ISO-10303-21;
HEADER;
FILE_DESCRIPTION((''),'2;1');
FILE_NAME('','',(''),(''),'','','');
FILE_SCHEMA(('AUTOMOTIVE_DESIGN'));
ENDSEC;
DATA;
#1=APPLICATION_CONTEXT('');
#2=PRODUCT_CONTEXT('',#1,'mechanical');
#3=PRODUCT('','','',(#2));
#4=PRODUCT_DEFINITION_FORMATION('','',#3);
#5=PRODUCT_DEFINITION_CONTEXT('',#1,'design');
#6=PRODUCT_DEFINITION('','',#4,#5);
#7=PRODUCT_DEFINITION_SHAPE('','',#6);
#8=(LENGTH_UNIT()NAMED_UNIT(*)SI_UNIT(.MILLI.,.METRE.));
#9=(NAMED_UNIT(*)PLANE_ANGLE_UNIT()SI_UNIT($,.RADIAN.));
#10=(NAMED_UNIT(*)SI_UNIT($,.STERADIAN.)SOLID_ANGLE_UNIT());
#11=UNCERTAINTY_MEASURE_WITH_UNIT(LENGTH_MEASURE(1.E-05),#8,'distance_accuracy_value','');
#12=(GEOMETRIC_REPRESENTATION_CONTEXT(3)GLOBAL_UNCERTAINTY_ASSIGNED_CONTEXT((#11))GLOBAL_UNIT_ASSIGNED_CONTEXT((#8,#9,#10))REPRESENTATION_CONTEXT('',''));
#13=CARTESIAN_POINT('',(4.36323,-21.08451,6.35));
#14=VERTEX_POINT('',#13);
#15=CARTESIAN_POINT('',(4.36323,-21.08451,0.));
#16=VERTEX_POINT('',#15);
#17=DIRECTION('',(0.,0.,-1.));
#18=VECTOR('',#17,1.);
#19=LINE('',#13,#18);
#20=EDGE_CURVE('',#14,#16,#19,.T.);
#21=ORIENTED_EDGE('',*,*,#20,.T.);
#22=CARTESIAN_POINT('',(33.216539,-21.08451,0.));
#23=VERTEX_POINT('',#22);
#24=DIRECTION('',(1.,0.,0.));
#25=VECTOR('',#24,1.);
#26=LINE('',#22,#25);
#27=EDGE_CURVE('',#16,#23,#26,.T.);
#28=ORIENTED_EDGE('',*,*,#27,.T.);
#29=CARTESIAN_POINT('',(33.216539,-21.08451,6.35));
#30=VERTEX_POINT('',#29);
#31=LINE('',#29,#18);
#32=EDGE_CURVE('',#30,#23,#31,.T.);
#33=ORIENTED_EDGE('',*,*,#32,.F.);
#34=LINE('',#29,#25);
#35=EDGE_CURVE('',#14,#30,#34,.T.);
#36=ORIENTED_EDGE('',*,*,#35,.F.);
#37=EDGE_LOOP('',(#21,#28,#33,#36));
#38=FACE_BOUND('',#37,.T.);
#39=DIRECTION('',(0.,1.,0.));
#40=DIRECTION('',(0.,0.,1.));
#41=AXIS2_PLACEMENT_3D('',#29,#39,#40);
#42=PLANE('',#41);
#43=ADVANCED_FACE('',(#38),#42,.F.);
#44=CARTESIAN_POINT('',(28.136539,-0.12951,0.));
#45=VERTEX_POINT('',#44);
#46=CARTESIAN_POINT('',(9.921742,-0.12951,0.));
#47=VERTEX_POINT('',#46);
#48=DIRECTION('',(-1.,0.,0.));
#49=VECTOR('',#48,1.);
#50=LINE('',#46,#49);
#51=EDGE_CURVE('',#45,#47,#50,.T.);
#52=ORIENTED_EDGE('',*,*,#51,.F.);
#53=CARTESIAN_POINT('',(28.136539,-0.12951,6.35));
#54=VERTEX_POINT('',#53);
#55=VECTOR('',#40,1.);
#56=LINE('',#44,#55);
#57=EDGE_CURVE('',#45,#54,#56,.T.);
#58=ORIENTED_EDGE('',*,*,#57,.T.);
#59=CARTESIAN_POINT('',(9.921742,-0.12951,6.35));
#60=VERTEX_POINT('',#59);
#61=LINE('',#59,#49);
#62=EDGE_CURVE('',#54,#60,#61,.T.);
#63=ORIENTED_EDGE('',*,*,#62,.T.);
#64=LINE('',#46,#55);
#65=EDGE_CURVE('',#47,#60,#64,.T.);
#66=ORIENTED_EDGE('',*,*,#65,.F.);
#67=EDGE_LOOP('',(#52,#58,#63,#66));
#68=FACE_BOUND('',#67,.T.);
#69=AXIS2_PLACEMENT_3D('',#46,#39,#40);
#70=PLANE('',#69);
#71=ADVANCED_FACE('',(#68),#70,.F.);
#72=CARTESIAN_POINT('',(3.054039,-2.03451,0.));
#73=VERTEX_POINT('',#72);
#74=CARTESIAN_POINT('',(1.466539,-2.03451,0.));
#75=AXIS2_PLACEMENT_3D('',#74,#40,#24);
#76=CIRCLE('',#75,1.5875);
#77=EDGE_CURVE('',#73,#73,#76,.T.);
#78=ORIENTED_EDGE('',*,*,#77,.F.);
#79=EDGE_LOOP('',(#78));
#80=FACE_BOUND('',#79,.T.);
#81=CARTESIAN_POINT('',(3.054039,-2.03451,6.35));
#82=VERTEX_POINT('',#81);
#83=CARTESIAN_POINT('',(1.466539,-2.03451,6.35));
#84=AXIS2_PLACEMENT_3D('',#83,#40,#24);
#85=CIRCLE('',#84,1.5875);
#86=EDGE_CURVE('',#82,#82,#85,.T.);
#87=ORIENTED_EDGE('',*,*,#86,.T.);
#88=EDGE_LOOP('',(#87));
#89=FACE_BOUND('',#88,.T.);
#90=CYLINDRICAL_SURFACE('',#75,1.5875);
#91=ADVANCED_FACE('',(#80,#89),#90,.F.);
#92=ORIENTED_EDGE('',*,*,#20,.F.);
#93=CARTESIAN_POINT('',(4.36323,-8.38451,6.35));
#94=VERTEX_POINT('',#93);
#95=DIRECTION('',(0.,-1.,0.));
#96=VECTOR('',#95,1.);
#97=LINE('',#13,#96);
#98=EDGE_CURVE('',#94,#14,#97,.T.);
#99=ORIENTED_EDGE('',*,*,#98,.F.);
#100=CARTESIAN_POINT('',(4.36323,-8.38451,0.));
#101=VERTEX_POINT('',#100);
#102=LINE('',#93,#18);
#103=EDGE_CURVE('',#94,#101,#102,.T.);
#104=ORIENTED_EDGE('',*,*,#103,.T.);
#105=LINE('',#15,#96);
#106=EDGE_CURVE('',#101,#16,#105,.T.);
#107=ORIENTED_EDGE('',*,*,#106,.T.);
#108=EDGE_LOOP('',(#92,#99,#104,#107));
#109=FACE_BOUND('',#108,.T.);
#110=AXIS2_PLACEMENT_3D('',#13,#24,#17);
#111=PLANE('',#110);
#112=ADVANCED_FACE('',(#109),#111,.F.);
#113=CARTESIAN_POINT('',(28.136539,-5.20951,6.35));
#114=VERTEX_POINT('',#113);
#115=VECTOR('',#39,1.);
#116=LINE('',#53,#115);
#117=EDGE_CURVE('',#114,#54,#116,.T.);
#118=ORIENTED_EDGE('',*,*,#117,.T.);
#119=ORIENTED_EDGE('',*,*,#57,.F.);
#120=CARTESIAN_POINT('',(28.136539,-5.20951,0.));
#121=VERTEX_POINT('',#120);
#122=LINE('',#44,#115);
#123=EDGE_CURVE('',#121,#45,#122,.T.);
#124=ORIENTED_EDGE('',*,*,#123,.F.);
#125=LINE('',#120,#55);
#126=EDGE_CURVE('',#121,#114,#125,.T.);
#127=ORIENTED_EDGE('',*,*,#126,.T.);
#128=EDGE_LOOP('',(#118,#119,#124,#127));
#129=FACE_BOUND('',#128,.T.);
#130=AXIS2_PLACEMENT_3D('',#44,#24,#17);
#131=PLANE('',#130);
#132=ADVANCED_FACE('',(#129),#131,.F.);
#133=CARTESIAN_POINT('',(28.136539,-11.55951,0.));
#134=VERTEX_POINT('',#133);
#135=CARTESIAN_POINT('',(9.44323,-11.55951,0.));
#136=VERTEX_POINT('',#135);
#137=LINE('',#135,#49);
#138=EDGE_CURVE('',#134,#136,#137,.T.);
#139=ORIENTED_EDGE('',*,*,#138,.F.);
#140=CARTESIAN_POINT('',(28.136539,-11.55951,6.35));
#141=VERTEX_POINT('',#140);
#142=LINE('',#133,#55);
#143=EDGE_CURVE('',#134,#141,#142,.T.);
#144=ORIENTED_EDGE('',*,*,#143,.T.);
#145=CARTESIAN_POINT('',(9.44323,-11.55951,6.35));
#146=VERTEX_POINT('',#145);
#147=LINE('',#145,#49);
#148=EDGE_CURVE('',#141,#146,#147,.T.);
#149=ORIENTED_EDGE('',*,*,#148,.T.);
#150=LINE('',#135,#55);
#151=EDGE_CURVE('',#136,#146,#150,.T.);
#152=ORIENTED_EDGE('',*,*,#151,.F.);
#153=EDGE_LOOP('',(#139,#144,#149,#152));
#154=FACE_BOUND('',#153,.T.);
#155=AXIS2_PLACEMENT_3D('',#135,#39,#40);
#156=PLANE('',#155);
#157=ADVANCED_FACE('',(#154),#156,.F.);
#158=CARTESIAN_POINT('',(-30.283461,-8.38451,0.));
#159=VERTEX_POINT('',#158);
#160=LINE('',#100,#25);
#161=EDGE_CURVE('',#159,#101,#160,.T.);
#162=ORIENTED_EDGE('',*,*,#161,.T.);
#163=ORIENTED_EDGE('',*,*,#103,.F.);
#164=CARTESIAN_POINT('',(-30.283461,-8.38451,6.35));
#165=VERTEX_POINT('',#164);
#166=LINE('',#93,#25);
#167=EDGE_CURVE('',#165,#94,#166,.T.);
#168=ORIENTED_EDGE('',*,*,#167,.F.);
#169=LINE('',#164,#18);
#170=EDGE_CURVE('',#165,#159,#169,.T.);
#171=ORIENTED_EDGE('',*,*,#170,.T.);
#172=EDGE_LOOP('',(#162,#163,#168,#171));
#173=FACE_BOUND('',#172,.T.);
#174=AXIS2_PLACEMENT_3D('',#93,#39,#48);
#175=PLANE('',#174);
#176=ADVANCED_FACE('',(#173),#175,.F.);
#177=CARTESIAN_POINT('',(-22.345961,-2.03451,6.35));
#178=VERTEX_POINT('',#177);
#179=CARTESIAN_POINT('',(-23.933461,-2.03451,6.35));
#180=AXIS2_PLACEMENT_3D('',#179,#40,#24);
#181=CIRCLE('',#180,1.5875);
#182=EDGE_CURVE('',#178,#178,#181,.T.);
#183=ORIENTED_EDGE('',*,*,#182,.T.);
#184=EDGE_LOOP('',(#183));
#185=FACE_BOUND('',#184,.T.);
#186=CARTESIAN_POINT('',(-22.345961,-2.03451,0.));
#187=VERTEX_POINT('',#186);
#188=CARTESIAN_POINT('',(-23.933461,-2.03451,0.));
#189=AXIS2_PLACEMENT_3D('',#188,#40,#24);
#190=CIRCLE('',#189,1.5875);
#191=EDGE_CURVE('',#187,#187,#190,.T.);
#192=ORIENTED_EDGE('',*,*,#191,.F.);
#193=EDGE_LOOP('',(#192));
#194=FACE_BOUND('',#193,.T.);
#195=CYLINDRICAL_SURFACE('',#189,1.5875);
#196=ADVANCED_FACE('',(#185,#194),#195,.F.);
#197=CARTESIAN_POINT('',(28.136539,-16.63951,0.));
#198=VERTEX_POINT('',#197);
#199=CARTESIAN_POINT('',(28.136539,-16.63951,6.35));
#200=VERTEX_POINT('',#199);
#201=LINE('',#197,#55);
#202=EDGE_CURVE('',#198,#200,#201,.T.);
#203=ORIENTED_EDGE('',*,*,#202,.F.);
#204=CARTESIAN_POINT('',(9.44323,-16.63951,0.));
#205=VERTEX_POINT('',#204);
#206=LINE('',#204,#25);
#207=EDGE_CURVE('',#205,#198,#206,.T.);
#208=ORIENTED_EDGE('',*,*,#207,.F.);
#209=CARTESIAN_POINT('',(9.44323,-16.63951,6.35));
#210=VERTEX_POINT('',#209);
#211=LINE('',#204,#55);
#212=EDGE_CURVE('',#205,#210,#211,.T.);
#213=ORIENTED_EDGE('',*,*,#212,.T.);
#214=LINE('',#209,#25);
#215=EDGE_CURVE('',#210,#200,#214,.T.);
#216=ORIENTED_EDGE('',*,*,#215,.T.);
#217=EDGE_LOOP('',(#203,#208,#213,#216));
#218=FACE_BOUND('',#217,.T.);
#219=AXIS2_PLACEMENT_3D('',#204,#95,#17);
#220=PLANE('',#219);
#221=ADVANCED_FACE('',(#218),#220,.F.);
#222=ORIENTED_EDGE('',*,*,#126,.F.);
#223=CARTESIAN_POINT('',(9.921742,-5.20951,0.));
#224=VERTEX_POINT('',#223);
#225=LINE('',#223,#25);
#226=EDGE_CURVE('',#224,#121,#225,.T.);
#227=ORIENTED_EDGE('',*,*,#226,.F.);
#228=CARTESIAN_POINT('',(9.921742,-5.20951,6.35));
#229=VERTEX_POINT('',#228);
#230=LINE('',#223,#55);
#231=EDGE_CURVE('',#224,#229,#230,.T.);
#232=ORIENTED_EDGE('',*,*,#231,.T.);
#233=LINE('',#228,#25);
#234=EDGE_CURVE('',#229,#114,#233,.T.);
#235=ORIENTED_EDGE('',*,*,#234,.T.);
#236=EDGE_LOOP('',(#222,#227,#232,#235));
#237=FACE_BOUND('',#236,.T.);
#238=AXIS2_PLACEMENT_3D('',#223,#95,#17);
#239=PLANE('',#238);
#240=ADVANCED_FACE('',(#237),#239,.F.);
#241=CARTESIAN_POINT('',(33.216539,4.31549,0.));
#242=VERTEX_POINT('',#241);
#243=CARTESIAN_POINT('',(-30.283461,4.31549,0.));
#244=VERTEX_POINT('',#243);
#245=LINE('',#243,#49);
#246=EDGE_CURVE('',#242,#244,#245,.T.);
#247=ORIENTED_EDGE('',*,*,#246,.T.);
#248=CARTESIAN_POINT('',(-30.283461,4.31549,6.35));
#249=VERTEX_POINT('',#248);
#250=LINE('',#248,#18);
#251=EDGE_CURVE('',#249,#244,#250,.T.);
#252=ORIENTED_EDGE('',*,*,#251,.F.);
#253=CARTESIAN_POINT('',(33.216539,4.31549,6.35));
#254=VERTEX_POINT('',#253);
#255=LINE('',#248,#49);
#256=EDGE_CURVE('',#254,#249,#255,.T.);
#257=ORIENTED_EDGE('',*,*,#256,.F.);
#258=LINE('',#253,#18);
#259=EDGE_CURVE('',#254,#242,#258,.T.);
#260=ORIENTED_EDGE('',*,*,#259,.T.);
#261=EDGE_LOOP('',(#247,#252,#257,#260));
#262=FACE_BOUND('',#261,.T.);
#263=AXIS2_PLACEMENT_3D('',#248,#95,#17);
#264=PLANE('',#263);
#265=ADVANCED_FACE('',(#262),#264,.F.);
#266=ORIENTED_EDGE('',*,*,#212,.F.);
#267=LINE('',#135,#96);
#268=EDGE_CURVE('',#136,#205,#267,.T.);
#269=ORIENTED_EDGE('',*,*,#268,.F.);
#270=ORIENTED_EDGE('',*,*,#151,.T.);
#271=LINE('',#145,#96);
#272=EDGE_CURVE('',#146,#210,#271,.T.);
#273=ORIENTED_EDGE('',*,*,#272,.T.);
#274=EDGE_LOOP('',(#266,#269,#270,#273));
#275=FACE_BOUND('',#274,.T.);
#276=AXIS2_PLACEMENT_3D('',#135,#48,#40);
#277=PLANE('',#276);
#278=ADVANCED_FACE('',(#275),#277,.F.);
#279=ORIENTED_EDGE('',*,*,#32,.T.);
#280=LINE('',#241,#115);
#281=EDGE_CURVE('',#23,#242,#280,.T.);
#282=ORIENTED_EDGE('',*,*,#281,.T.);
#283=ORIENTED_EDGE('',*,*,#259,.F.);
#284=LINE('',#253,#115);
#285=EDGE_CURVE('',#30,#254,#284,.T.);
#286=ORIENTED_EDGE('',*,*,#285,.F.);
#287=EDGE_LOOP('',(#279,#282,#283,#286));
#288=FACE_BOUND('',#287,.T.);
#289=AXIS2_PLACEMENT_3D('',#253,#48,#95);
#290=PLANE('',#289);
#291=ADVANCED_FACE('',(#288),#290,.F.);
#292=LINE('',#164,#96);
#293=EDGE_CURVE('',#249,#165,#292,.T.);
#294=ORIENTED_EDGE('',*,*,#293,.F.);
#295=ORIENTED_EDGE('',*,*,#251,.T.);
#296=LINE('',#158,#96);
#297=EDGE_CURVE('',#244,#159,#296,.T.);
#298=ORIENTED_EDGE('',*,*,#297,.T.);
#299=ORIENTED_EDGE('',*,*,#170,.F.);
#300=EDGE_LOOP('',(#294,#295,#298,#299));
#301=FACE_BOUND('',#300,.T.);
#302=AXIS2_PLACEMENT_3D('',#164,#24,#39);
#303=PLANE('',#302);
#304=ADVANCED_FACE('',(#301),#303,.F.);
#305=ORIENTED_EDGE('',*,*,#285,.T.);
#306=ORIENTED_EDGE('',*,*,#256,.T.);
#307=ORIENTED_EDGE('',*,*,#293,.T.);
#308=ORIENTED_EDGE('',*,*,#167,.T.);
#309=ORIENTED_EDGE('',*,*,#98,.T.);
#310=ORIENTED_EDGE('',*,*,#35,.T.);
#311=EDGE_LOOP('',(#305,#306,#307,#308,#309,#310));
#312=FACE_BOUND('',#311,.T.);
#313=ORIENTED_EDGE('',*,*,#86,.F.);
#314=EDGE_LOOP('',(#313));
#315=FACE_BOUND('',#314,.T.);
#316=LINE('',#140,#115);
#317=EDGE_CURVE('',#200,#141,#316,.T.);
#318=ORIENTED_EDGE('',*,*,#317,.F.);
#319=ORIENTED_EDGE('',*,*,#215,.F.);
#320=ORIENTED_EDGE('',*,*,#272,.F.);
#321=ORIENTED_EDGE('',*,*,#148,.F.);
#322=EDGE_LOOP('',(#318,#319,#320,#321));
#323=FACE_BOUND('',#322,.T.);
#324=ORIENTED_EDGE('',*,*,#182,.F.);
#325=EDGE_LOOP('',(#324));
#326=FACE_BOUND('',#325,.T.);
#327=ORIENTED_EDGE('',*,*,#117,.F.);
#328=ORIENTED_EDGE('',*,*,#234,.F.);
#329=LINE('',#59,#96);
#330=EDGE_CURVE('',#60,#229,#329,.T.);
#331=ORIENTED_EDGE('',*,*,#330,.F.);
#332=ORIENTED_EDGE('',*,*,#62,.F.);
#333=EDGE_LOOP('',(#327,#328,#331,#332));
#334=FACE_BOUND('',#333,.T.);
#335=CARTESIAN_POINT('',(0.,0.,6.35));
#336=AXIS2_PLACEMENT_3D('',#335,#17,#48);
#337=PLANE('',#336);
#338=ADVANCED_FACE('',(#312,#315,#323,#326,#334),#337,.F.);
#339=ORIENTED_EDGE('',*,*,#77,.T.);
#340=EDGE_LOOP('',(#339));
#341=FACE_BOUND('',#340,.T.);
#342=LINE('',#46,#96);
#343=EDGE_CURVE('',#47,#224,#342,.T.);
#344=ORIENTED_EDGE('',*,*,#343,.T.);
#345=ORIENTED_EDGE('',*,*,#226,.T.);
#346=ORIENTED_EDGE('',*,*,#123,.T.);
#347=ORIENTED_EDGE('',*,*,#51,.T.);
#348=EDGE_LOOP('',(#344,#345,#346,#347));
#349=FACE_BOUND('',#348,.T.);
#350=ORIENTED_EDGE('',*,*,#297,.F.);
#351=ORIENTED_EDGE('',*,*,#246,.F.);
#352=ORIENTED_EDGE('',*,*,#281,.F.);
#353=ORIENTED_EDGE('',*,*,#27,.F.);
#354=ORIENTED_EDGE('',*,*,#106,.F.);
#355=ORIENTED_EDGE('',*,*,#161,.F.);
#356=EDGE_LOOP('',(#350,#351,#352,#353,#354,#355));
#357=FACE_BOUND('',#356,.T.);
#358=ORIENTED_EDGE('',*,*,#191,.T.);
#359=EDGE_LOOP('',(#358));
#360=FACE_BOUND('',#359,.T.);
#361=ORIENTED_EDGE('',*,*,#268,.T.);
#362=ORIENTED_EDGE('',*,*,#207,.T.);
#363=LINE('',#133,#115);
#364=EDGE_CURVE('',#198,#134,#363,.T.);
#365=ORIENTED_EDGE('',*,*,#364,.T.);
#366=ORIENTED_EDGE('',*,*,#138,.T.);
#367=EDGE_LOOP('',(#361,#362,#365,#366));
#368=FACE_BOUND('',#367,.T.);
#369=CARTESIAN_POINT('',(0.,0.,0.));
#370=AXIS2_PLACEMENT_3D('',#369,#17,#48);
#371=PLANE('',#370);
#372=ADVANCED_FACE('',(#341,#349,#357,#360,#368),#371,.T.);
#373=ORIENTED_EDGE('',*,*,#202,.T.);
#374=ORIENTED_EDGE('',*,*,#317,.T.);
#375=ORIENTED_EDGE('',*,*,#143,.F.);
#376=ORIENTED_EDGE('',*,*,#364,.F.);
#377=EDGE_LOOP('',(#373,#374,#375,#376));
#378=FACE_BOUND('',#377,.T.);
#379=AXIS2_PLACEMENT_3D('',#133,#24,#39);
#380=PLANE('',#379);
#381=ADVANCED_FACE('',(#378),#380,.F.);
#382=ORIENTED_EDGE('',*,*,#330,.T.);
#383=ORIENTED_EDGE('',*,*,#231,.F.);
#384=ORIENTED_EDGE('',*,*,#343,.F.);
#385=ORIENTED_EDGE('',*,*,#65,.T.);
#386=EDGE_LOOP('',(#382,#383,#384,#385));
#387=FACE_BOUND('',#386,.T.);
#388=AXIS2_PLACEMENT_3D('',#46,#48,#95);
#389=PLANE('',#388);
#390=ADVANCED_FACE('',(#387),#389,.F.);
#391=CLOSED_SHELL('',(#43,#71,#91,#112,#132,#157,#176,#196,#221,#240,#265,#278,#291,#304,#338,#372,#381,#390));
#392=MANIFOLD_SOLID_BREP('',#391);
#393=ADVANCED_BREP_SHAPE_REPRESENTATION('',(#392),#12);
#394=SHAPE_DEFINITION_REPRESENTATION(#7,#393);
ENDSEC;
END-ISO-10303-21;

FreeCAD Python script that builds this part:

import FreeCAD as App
import Part
import Sketcher

V = App.Vector
Q = App.Units.Quantity


def add_polygon(sketch, points):
    """Adds a closed chain of lines whose ends are joined by coincident constraints."""
    first, n = sketch.GeometryCount, len(points)
    for a, b in zip(points, points[1:] + points[:1]):
        sketch.addGeometry(Part.LineSegment(App.Vector(*a, 0), App.Vector(*b, 0)), False)
    for i in range(n):
        sketch.addConstraint(Sketcher.Constraint("Coincident", first + i, 2, first + (i + 1) % n, 1))

doc = App.newDocument("Part")
params = doc.addObject("Spreadsheet::Sheet", "Params")
for row, (alias, value) in enumerate([
    ("sketch1_height", "1 in"),
    ("sketch1_width", "2.5 in"),
    ("pad1_length", "0.25 in"),
    ("sketch2_diameter", "0.125 in"),
    ("sketch2_height", "0.2 in"),
    ("pocket1_length", "0.25 in"),
], start=1):
    params.set(f"A{row}", alias)
    params.set(f"B{row}", "=" + value)
    params.setAlias(f"B{row}", alias)

body = doc.addObject("PartDesign::Body", "Body")

sketch1 = body.newObject("Sketcher::SketchObject", "Sketch")
sketch1.AttachmentSupport = (doc.getObject("XY_Plane"), [""])
sketch1.MapMode = "FlatFace"
add_polygon(sketch1, [(33, 4), (-30, 4), (-30, -8), (4, -8), (4, -21), (33, -21)])
sketch1.addConstraint(Sketcher.Constraint("Horizontal", 0))
sketch1.addConstraint(Sketcher.Constraint("Vertical", 1))
sketch1.addConstraint(Sketcher.Constraint("Horizontal", 2))
sketch1.addConstraint(Sketcher.Constraint("Vertical", 3))
sketch1.addConstraint(Sketcher.Constraint("Horizontal", 4))
sketch1.addConstraint(Sketcher.Constraint("Vertical", 5))
sketch1.addConstraint(Sketcher.Constraint("Equal", 1, 3))
sketch1.addConstraint(Sketcher.Constraint("DistanceY", 5, 1, 5, 2, Q("1 in")))
sketch1.addConstraint(Sketcher.Constraint("DistanceX", 0, 2, 0, 1, Q("2.5 in")))
sketch1.addConstraint(Sketcher.Constraint("DistanceX", 2, 1, 2, 2, 34.646691))
sketch1.addConstraint(Sketcher.Constraint("DistanceX", 0, 2, -1, 1, 30.283461))
sketch1.addConstraint(Sketcher.Constraint("DistanceY", -1, 1, 0, 2, 4.31549))
sketch1.setExpression("Constraints[13]", "Params.sketch1_height")
sketch1.setExpression("Constraints[14]", "Params.sketch1_width")
pad1 = body.newObject("PartDesign::Pad", "Pad")
pad1.Profile = sketch1
pad1.setExpression("Length", "Params.pad1_length")

sketch2 = body.newObject("Sketcher::SketchObject", "Sketch001")
sketch2.AttachmentSupport = (doc.getObject("XY_Plane"), [""])
sketch2.MapMode = "FlatFace"
sketch2.AttachmentOffset = App.Placement(V(0, 0, 0.25 * 25.4), App.Rotation())
sketch2.addGeometry(Part.Circle(V(-23.9, -2, 0), V(0, 0, 1), 1.6), False)
sketch2.addGeometry(Part.Circle(V(1.5, -2, 0), V(0, 0, 1), 1.6), False)
add_polygon(sketch2, [(9.9, -0.1), (9.9, -5.2), (28.1, -5.2), (28.1, -0.1)])
add_polygon(sketch2, [(9.4, -11.6), (9.4, -16.6), (28.1, -16.6), (28.1, -11.6)])
sketch2.addConstraint(Sketcher.Constraint("Vertical", 2))
sketch2.addConstraint(Sketcher.Constraint("Horizontal", 3))
sketch2.addConstraint(Sketcher.Constraint("Vertical", 4))
sketch2.addConstraint(Sketcher.Constraint("Horizontal", 5))
sketch2.addConstraint(Sketcher.Constraint("Vertical", 6))
sketch2.addConstraint(Sketcher.Constraint("Horizontal", 7))
sketch2.addConstraint(Sketcher.Constraint("Vertical", 8))
sketch2.addConstraint(Sketcher.Constraint("Horizontal", 9))
sketch2.addConstraint(Sketcher.Constraint("Equal", 0, 1))
sketch2.addConstraint(Sketcher.Constraint("Horizontal", 0, 3, 1, 3))
sketch2.addConstraint(Sketcher.Constraint("Vertical", 4, 2, 7, 2))
sketch2.addConstraint(Sketcher.Constraint("Equal", 4, 6))
sketch2.addConstraint(Sketcher.Constraint("Diameter", 0, Q("0.125 in")))
sketch2.addConstraint(Sketcher.Constraint("DistanceY", 2, 2, 2, 1, Q("0.2 in")))
sketch2.addConstraint(Sketcher.Constraint("DistanceX", 0, 3, 1, 3, Q("1 in")))
sketch2.addConstraint(Sketcher.Constraint("DistanceX", 1, 3, 3, 2, Q("1.05 in")))
sketch2.addConstraint(Sketcher.Constraint("DistanceY", 6, 2, 2, 2, Q("0.45 in")))
sketch2.addConstraint(Sketcher.Constraint("DistanceY", 2, 2, 1, 3, Q("0.125 in")))
sketch2.addConstraint(Sketcher.Constraint("DistanceX", 7, 1, 7, 2, 18.693309))
sketch2.addConstraint(Sketcher.Constraint("DistanceX", 3, 1, 3, 2, 18.214798))
sketch2.addConstraint(Sketcher.Constraint("DistanceX", 0, 3, -1, 1, 23.933461))
sketch2.addConstraint(Sketcher.Constraint("DistanceY", 0, 3, -1, 1, 2.03451))
sketch2.setExpression("Constraints[20]", "Params.sketch2_diameter")
sketch2.setExpression("Constraints[21]", "Params.sketch2_height")
pocket1 = body.newObject("PartDesign::Pocket", "Pocket")
pocket1.Profile = sketch2
pocket1.setExpression("Length", "Params.pocket1_length")

doc.recompute()
